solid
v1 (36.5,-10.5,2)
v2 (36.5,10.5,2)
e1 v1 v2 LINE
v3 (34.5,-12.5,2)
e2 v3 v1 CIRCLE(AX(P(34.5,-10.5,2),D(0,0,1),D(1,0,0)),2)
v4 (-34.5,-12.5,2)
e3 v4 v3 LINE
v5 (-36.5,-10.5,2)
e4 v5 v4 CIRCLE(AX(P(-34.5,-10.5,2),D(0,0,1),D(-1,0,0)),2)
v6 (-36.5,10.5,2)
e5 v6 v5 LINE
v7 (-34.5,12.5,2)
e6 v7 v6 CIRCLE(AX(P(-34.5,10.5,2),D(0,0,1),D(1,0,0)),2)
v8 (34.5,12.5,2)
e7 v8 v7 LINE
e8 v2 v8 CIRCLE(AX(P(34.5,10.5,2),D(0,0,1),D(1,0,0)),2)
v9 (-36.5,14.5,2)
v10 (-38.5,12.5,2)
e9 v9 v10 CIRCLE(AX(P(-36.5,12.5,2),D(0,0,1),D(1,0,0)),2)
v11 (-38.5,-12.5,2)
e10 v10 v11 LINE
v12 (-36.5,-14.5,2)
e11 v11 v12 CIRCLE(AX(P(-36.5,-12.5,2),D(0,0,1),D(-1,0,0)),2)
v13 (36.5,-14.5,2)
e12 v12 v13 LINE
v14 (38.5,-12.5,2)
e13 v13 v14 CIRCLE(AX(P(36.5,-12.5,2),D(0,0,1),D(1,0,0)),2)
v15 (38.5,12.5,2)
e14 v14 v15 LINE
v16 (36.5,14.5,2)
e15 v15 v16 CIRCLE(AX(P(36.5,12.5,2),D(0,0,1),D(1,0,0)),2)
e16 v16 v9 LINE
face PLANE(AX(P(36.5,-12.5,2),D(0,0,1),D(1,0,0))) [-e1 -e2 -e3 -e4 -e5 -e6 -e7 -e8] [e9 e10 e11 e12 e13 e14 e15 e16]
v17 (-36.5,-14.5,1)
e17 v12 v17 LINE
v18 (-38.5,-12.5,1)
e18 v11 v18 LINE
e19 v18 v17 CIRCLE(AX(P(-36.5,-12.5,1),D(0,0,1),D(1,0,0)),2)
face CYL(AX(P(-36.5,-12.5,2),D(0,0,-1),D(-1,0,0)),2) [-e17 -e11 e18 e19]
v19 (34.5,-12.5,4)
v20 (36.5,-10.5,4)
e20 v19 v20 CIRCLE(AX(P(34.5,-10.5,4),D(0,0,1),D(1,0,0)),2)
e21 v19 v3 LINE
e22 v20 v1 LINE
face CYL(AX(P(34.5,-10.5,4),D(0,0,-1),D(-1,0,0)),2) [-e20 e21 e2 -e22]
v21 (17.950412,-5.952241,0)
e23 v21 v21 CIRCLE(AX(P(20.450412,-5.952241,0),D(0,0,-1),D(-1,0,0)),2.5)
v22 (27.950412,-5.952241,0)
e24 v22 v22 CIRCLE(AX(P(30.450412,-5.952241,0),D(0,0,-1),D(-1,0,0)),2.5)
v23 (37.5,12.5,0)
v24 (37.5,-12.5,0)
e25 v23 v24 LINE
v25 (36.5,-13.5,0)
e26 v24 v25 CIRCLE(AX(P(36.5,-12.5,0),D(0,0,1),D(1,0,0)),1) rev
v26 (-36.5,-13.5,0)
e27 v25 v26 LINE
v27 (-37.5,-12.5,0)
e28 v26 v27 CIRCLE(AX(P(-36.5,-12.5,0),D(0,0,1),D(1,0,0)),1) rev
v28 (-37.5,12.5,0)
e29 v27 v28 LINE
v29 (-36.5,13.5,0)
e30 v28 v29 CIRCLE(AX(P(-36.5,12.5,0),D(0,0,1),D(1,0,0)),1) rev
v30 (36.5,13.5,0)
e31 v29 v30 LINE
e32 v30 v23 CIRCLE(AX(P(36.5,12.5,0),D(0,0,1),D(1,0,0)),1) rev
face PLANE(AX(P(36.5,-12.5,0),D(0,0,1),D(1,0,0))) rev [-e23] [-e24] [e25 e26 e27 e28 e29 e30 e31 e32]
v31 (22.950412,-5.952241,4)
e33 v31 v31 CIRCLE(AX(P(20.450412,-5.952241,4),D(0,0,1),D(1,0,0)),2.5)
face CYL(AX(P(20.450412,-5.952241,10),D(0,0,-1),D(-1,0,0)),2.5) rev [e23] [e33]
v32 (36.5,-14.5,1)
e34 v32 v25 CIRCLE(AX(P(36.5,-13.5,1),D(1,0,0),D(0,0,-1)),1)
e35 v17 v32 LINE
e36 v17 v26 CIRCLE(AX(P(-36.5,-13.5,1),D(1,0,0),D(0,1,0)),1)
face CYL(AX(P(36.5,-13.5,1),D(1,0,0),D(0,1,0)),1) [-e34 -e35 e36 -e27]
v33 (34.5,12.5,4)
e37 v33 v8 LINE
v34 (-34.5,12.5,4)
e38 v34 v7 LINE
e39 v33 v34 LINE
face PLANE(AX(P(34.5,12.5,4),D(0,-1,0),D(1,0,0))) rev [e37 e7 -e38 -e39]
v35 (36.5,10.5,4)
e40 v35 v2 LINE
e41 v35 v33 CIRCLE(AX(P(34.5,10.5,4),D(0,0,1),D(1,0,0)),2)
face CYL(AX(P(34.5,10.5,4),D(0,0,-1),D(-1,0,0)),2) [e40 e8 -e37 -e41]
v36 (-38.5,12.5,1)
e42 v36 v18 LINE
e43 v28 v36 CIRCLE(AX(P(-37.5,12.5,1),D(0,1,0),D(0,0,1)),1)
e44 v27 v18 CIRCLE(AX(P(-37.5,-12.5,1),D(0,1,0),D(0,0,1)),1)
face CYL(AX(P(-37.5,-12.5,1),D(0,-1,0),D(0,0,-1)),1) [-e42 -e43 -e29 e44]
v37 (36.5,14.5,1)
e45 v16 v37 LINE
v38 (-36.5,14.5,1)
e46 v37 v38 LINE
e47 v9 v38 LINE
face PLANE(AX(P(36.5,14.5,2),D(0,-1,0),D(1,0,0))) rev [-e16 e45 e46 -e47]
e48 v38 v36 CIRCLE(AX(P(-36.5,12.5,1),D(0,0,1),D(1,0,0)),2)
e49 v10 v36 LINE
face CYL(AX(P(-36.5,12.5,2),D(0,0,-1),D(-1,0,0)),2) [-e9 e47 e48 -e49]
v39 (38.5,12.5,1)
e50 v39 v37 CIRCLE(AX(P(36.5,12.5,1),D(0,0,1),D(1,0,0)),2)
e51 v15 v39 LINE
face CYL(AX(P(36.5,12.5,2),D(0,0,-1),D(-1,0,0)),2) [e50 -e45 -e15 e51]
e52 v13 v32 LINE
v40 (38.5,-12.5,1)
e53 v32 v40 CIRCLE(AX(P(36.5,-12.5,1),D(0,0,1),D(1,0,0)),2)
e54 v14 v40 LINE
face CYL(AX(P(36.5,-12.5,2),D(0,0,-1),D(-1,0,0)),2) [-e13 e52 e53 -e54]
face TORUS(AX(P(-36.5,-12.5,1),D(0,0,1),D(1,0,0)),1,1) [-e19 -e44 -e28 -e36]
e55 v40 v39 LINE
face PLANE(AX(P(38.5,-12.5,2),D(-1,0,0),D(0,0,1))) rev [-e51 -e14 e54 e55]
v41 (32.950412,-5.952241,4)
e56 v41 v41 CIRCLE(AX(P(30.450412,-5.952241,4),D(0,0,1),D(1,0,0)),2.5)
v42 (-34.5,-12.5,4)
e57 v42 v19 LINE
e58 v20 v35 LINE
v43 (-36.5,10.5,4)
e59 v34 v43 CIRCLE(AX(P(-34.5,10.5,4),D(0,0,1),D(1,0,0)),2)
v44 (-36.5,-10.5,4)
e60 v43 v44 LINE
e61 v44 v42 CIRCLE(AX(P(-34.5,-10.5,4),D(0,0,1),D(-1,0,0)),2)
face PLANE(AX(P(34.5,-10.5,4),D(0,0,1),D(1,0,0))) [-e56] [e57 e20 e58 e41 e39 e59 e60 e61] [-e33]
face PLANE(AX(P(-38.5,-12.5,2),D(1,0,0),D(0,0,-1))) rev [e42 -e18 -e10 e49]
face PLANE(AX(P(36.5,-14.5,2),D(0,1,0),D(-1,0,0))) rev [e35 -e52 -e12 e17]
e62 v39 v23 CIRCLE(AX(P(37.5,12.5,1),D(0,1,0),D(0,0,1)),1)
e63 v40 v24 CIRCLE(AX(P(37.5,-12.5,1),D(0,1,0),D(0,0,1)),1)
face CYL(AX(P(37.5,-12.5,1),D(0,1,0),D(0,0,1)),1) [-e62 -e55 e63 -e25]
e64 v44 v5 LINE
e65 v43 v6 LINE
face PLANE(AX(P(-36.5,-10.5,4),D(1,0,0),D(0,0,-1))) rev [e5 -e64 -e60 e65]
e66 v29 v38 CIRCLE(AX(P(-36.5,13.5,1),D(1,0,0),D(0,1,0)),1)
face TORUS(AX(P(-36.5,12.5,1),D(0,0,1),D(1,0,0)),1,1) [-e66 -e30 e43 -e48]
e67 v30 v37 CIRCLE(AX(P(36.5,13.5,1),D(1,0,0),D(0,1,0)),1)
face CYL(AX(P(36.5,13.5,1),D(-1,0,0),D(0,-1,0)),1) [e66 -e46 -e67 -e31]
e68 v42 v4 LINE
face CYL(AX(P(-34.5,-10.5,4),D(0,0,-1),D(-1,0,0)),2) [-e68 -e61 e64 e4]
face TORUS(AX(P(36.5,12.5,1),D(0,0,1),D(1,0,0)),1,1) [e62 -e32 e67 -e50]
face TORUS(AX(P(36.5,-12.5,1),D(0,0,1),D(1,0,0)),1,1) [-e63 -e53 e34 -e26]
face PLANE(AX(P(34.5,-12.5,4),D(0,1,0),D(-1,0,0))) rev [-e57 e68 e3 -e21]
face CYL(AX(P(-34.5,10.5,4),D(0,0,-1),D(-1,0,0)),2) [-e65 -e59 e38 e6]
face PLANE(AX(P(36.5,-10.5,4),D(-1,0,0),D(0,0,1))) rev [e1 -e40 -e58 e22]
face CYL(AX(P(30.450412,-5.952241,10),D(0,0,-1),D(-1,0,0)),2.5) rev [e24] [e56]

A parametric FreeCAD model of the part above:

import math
import FreeCAD as App
import Part
import Sketcher

V = App.Vector


def edges_at(feature, points):
    """Names of the edges that pass closest to the given points."""
    edges = feature.Shape.Edges
    near = lambda p: min(range(len(edges)), key=lambda i: edges[i].distToShape(Part.Vertex(*p))[0])
    return sorted({f"Edge{near(p) + 1}" for p in points})

doc = App.newDocument("Part")
body = doc.addObject("PartDesign::Body", "Body")

sketch1 = body.newObject("Sketcher::SketchObject", "Sketch")
sketch1.AttachmentSupport = (doc.getObject("XY_Plane"), [""])
sketch1.MapMode = "FlatFace"
sketch1.addGeometry([
    Part.LineSegment(V(-36.5, -14.5, 0), V(36.5, -14.5, 0)),
    Part.ArcOfCircle(Part.Circle(V(36.5, -12.5, 0), V(0, 0, 1), 2), math.radians(-90), math.radians(0)),
    Part.LineSegment(V(38.5, -12.5, 0), V(38.5, 12.5, 0)),
    Part.ArcOfCircle(Part.Circle(V(36.5, 12.5, 0), V(0, 0, 1), 2), math.radians(0), math.radians(90)),
    Part.LineSegment(V(36.5, 14.5, 0), V(-36.5, 14.5, 0)),
    Part.ArcOfCircle(Part.Circle(V(-36.5, 12.5, 0), V(0, 0, 1), 2), math.radians(90), math.radians(180)),
    Part.LineSegment(V(-38.5, 12.5, 0), V(-38.5, -12.5, 0)),
    Part.ArcOfCircle(Part.Circle(V(-36.5, -12.5, 0), V(0, 0, 1), 2), math.radians(-180), math.radians(-90)),
], False)
sketch1.addConstraint([
    Sketcher.Constraint("Tangent", 0, 2, 1, 1),
    Sketcher.Constraint("Tangent", 1, 2, 2, 1),
    Sketcher.Constraint("Tangent", 2, 2, 3, 1),
    Sketcher.Constraint("Tangent", 3, 2, 4, 1),
    Sketcher.Constraint("Tangent", 4, 2, 5, 1),
    Sketcher.Constraint("Tangent", 5, 2, 6, 1),
    Sketcher.Constraint("Tangent", 6, 2, 7, 1),
    Sketcher.Constraint("Tangent", 7, 2, 0, 1),
    Sketcher.Constraint("Horizontal", 0),
    Sketcher.Constraint("Vertical", 2),
    Sketcher.Constraint("Horizontal", 4),
    Sketcher.Constraint("Vertical", 6),
    Sketcher.Constraint("Equal", 1, 3),
    Sketcher.Constraint("Equal", 3, 5),
    Sketcher.Constraint("Equal", 5, 7),
    Sketcher.Constraint("Symmetric", 1, 3, 5, 3, -1, 1),
    Sketcher.Constraint("Radius", 1, 2.0),
    Sketcher.Constraint("DistanceX", 0, 1, 0, 2, 73.0),
    Sketcher.Constraint("DistanceY", 2, 1, 2, 2, 25.0),
])
pad1 = body.newObject("PartDesign::Pad", "Pad")
pad1.Profile = sketch1
pad1.Length = 2

sketch2 = body.newObject("Sketcher::SketchObject", "Sketch001")
sketch2.AttachmentSupport = (doc.getObject("XY_Plane"), [""])
sketch2.MapMode = "FlatFace"
sketch2.AttachmentOffset = App.Placement(V(0, 0, 2), App.Rotation())
sketch2.addGeometry([
    Part.LineSegment(V(-34.5, -12.5, 0), V(34.5, -12.5, 0)),
    Part.ArcOfCircle(Part.Circle(V(34.5, -10.5, 0), V(0, 0, 1), 2), math.radians(-90), math.radians(0)),
    Part.LineSegment(V(36.5, -10.5, 0), V(36.5, 10.5, 0)),
    Part.ArcOfCircle(Part.Circle(V(34.5, 10.5, 0), V(0, 0, 1), 2), math.radians(0), math.radians(90)),
    Part.LineSegment(V(34.5, 12.5, 0), V(-34.5, 12.5, 0)),
    Part.ArcOfCircle(Part.Circle(V(-34.5, 10.5, 0), V(0, 0, 1), 2), math.radians(90), math.radians(180)),
    Part.LineSegment(V(-36.5, 10.5, 0), V(-36.5, -10.5, 0)),
    Part.ArcOfCircle(Part.Circle(V(-34.5, -10.5, 0), V(0, 0, 1), 2), math.radians(-180), math.radians(-90)),
], False)
sketch2.addConstraint([
    Sketcher.Constraint("Tangent", 0, 2, 1, 1),
    Sketcher.Constraint("Tangent", 1, 2, 2, 1),
    Sketcher.Constraint("Tangent", 2, 2, 3, 1),
    Sketcher.Constraint("Tangent", 3, 2, 4, 1),
    Sketcher.Constraint("Tangent", 4, 2, 5, 1),
    Sketcher.Constraint("Tangent", 5, 2, 6, 1),
    Sketcher.Constraint("Tangent", 6, 2, 7, 1),
    Sketcher.Constraint("Tangent", 7, 2, 0, 1),
    Sketcher.Constraint("Horizontal", 0),
    Sketcher.Constraint("Vertical", 2),
    Sketcher.Constraint("Horizontal", 4),
    Sketcher.Constraint("Vertical", 6),
    Sketcher.Constraint("Equal", 1, 3),
    Sketcher.Constraint("Equal", 3, 5),
    Sketcher.Constraint("Equal", 5, 7),
    Sketcher.Constraint("Symmetric", 1, 3, 5, 3, -1, 1),
    Sketcher.Constraint("Radius", 1, 2.0),
    Sketcher.Constraint("DistanceX", 0, 1, 0, 2, 69.0),
    Sketcher.Constraint("DistanceY", 2, 1, 2, 2, 21.0),
])
pad2 = body.newObject("PartDesign::Pad", "Pad001")
pad2.Profile = sketch2
pad2.Length = 2

sketch3 = body.newObject("Sketcher::SketchObject", "Sketch002")
sketch3.AttachmentSupport = (doc.getObject("XY_Plane"), [""])
sketch3.MapMode = "FlatFace"
sketch3.addGeometry([
    Part.Circle(V(30.5, -6, 0), V(0, 0, 1), 2.5),
    Part.Circle(V(20.5, -6, 0), V(0, 0, 1), 2.5),
], False)
sketch3.addConstraint([
    Sketcher.Constraint("Equal", 0, 1),
    Sketcher.Constraint("Horizontal", 0, 3, 1, 3),
    Sketcher.Constraint("Diameter", 0, 5.0),
    Sketcher.Constraint("DistanceX", 1, 3, 0, 3, 10.0),
    Sketcher.Constraint("DistanceY", 0, 3, -1, 1, 5.952241),
    Sketcher.Constraint("DistanceX", -1, 1, 0, 3, 30.450412),
])
pocket1 = body.newObject("PartDesign::Pocket", "Pocket")
pocket1.Profile = sketch3
pocket1.Length = 10
pocket1.Reversed = True
doc.recompute()

fillet = body.newObject("PartDesign::Fillet", "Fillet")
fillet.Base = (pocket1, edges_at(pocket1, [
    (38.5, 0, 0),
    (37.914, -13.914, 0),
    (0, -14.5, 0),
    (-37.914, -13.914, 0),
    (-38.5, 0, 0),
    (-37.914, 13.914, 0),
    (0, 14.5, 0),
    (37.914, 13.914, 0),
]))
fillet.Radius = 1

doc.recompute()
